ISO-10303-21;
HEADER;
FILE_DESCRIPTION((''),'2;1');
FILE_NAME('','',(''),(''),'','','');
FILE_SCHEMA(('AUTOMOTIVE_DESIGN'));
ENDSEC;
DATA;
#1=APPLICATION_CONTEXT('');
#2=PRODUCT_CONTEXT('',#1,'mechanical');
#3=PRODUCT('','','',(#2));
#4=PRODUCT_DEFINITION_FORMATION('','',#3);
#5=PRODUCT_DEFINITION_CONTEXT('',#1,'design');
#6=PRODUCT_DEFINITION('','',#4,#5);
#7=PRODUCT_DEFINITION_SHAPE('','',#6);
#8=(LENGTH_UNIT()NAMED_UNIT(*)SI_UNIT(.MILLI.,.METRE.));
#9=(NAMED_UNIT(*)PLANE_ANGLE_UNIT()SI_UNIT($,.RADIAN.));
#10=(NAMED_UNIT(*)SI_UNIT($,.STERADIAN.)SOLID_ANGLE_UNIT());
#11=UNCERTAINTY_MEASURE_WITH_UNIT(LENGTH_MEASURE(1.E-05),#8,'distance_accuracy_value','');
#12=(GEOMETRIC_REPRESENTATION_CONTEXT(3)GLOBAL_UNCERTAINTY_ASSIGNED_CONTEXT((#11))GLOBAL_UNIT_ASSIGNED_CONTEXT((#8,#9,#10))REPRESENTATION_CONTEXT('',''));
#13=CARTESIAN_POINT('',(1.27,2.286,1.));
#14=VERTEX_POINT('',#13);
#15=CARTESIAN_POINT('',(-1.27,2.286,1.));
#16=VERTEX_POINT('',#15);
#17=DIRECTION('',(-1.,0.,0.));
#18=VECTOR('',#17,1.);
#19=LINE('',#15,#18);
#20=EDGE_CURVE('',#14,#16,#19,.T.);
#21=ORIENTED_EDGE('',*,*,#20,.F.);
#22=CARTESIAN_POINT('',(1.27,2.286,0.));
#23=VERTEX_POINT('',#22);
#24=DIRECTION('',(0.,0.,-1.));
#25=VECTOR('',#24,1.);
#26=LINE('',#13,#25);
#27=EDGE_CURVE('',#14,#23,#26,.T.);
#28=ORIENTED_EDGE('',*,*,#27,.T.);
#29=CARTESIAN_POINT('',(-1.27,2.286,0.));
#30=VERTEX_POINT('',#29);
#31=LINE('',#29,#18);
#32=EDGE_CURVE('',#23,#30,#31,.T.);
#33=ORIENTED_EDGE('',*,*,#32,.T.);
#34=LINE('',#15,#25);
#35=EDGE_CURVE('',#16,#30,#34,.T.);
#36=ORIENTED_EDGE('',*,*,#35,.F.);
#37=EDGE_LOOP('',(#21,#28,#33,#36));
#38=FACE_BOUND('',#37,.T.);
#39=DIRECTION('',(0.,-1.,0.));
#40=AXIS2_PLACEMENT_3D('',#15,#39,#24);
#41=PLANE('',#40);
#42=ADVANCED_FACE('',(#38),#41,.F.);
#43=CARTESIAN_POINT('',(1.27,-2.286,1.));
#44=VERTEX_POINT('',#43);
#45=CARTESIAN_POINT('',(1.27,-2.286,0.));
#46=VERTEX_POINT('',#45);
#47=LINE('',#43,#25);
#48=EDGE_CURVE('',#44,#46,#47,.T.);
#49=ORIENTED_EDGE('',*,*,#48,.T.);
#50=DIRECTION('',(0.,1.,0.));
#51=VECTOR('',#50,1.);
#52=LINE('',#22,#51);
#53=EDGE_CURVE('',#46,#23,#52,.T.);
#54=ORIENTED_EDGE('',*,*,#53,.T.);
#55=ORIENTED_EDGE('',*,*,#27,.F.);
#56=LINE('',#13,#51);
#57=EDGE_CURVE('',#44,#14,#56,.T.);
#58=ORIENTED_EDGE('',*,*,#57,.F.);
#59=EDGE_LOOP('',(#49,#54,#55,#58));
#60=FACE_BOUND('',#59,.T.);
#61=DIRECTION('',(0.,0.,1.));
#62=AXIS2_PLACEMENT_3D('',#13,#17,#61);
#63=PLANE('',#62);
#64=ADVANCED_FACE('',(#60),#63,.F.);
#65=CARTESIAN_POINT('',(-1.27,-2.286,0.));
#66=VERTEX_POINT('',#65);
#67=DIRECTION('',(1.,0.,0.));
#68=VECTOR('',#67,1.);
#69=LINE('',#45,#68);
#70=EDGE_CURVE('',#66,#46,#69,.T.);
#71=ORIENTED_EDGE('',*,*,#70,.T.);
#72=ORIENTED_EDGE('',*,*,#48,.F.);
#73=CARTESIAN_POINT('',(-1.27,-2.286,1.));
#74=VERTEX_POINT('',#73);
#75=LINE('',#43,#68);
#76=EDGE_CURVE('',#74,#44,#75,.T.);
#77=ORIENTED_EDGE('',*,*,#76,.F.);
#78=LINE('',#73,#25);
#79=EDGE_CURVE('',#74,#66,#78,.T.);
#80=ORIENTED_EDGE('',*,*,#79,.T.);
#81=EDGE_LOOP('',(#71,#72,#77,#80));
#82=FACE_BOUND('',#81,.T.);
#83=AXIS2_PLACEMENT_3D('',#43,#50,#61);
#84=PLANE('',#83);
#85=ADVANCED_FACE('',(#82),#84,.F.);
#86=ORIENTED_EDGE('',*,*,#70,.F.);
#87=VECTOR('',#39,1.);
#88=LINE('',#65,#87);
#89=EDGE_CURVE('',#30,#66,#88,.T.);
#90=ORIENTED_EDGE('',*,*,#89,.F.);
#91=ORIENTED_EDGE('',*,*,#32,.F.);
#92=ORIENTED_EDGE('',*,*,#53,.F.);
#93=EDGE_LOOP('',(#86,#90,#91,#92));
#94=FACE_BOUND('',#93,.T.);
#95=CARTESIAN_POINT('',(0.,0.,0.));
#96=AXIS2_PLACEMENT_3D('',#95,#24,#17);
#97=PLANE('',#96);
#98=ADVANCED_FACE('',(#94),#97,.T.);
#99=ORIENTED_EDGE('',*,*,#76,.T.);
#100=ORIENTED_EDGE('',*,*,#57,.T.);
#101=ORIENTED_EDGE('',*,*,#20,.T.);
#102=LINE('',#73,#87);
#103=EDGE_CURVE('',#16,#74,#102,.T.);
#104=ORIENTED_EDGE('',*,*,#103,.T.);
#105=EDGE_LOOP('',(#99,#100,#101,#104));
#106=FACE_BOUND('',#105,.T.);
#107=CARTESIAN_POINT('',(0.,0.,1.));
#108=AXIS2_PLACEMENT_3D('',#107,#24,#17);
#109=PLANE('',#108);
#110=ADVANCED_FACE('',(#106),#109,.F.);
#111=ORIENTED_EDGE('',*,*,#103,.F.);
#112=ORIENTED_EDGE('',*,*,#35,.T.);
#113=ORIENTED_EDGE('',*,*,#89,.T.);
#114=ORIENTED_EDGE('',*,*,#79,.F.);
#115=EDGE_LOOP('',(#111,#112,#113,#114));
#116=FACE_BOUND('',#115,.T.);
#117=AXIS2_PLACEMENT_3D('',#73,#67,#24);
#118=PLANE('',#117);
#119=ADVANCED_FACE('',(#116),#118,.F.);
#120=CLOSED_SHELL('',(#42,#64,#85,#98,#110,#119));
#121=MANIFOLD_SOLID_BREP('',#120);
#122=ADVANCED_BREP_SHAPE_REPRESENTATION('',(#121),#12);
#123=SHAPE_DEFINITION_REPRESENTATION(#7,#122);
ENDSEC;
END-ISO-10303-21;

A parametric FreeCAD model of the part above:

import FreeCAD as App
import Part
import Sketcher
Q = App.Units.Quantity


def add_polygon(sketch, points):
    """Adds a closed chain of lines whose ends are joined by coincident constraints."""
    first, n = sketch.GeometryCount, len(points)
    for a, b in zip(points, points[1:] + points[:1]):
        sketch.addGeometry(Part.LineSegment(App.Vector(*a, 0), App.Vector(*b, 0)), False)
    for i in range(n):
        sketch.addConstraint(Sketcher.Constraint("Coincident", first + i, 2, first + (i + 1) % n, 1))

doc = App.newDocument("Part")
body = doc.addObject("PartDesign::Body", "Body")

# Sketch on XY plane
sketch1 = body.newObject("Sketcher::SketchObject", "Sketch")
sketch1.AttachmentSupport = (doc.getObject("XY_Plane"), [""])
sketch1.MapMode = "FlatFace"
add_polygon(sketch1, [(-1.27, 2.286), (-1.27, -2.286), (1.27, -2.286), (1.27, 2.286)])  # lines 0-3
sketch1.addConstraint([
    Sketcher.Constraint("Vertical", 0),
    Sketcher.Constraint("Horizontal", 1),
    Sketcher.Constraint("Vertical", 2),
    Sketcher.Constraint("Horizontal", 3),
    Sketcher.Constraint("Symmetric", 0, 2, 2, 2, -1, 1),
    Sketcher.Constraint("DistanceX", 1, 1, 1, 2, Q("0.1 in")),
    Sketcher.Constraint("DistanceY", 0, 2, 0, 1, Q("0.18 in")),
])
pad1 = body.newObject("PartDesign::Pad", "Pad")
pad1.Profile = sketch1
pad1.Length = 1

doc.recompute()
